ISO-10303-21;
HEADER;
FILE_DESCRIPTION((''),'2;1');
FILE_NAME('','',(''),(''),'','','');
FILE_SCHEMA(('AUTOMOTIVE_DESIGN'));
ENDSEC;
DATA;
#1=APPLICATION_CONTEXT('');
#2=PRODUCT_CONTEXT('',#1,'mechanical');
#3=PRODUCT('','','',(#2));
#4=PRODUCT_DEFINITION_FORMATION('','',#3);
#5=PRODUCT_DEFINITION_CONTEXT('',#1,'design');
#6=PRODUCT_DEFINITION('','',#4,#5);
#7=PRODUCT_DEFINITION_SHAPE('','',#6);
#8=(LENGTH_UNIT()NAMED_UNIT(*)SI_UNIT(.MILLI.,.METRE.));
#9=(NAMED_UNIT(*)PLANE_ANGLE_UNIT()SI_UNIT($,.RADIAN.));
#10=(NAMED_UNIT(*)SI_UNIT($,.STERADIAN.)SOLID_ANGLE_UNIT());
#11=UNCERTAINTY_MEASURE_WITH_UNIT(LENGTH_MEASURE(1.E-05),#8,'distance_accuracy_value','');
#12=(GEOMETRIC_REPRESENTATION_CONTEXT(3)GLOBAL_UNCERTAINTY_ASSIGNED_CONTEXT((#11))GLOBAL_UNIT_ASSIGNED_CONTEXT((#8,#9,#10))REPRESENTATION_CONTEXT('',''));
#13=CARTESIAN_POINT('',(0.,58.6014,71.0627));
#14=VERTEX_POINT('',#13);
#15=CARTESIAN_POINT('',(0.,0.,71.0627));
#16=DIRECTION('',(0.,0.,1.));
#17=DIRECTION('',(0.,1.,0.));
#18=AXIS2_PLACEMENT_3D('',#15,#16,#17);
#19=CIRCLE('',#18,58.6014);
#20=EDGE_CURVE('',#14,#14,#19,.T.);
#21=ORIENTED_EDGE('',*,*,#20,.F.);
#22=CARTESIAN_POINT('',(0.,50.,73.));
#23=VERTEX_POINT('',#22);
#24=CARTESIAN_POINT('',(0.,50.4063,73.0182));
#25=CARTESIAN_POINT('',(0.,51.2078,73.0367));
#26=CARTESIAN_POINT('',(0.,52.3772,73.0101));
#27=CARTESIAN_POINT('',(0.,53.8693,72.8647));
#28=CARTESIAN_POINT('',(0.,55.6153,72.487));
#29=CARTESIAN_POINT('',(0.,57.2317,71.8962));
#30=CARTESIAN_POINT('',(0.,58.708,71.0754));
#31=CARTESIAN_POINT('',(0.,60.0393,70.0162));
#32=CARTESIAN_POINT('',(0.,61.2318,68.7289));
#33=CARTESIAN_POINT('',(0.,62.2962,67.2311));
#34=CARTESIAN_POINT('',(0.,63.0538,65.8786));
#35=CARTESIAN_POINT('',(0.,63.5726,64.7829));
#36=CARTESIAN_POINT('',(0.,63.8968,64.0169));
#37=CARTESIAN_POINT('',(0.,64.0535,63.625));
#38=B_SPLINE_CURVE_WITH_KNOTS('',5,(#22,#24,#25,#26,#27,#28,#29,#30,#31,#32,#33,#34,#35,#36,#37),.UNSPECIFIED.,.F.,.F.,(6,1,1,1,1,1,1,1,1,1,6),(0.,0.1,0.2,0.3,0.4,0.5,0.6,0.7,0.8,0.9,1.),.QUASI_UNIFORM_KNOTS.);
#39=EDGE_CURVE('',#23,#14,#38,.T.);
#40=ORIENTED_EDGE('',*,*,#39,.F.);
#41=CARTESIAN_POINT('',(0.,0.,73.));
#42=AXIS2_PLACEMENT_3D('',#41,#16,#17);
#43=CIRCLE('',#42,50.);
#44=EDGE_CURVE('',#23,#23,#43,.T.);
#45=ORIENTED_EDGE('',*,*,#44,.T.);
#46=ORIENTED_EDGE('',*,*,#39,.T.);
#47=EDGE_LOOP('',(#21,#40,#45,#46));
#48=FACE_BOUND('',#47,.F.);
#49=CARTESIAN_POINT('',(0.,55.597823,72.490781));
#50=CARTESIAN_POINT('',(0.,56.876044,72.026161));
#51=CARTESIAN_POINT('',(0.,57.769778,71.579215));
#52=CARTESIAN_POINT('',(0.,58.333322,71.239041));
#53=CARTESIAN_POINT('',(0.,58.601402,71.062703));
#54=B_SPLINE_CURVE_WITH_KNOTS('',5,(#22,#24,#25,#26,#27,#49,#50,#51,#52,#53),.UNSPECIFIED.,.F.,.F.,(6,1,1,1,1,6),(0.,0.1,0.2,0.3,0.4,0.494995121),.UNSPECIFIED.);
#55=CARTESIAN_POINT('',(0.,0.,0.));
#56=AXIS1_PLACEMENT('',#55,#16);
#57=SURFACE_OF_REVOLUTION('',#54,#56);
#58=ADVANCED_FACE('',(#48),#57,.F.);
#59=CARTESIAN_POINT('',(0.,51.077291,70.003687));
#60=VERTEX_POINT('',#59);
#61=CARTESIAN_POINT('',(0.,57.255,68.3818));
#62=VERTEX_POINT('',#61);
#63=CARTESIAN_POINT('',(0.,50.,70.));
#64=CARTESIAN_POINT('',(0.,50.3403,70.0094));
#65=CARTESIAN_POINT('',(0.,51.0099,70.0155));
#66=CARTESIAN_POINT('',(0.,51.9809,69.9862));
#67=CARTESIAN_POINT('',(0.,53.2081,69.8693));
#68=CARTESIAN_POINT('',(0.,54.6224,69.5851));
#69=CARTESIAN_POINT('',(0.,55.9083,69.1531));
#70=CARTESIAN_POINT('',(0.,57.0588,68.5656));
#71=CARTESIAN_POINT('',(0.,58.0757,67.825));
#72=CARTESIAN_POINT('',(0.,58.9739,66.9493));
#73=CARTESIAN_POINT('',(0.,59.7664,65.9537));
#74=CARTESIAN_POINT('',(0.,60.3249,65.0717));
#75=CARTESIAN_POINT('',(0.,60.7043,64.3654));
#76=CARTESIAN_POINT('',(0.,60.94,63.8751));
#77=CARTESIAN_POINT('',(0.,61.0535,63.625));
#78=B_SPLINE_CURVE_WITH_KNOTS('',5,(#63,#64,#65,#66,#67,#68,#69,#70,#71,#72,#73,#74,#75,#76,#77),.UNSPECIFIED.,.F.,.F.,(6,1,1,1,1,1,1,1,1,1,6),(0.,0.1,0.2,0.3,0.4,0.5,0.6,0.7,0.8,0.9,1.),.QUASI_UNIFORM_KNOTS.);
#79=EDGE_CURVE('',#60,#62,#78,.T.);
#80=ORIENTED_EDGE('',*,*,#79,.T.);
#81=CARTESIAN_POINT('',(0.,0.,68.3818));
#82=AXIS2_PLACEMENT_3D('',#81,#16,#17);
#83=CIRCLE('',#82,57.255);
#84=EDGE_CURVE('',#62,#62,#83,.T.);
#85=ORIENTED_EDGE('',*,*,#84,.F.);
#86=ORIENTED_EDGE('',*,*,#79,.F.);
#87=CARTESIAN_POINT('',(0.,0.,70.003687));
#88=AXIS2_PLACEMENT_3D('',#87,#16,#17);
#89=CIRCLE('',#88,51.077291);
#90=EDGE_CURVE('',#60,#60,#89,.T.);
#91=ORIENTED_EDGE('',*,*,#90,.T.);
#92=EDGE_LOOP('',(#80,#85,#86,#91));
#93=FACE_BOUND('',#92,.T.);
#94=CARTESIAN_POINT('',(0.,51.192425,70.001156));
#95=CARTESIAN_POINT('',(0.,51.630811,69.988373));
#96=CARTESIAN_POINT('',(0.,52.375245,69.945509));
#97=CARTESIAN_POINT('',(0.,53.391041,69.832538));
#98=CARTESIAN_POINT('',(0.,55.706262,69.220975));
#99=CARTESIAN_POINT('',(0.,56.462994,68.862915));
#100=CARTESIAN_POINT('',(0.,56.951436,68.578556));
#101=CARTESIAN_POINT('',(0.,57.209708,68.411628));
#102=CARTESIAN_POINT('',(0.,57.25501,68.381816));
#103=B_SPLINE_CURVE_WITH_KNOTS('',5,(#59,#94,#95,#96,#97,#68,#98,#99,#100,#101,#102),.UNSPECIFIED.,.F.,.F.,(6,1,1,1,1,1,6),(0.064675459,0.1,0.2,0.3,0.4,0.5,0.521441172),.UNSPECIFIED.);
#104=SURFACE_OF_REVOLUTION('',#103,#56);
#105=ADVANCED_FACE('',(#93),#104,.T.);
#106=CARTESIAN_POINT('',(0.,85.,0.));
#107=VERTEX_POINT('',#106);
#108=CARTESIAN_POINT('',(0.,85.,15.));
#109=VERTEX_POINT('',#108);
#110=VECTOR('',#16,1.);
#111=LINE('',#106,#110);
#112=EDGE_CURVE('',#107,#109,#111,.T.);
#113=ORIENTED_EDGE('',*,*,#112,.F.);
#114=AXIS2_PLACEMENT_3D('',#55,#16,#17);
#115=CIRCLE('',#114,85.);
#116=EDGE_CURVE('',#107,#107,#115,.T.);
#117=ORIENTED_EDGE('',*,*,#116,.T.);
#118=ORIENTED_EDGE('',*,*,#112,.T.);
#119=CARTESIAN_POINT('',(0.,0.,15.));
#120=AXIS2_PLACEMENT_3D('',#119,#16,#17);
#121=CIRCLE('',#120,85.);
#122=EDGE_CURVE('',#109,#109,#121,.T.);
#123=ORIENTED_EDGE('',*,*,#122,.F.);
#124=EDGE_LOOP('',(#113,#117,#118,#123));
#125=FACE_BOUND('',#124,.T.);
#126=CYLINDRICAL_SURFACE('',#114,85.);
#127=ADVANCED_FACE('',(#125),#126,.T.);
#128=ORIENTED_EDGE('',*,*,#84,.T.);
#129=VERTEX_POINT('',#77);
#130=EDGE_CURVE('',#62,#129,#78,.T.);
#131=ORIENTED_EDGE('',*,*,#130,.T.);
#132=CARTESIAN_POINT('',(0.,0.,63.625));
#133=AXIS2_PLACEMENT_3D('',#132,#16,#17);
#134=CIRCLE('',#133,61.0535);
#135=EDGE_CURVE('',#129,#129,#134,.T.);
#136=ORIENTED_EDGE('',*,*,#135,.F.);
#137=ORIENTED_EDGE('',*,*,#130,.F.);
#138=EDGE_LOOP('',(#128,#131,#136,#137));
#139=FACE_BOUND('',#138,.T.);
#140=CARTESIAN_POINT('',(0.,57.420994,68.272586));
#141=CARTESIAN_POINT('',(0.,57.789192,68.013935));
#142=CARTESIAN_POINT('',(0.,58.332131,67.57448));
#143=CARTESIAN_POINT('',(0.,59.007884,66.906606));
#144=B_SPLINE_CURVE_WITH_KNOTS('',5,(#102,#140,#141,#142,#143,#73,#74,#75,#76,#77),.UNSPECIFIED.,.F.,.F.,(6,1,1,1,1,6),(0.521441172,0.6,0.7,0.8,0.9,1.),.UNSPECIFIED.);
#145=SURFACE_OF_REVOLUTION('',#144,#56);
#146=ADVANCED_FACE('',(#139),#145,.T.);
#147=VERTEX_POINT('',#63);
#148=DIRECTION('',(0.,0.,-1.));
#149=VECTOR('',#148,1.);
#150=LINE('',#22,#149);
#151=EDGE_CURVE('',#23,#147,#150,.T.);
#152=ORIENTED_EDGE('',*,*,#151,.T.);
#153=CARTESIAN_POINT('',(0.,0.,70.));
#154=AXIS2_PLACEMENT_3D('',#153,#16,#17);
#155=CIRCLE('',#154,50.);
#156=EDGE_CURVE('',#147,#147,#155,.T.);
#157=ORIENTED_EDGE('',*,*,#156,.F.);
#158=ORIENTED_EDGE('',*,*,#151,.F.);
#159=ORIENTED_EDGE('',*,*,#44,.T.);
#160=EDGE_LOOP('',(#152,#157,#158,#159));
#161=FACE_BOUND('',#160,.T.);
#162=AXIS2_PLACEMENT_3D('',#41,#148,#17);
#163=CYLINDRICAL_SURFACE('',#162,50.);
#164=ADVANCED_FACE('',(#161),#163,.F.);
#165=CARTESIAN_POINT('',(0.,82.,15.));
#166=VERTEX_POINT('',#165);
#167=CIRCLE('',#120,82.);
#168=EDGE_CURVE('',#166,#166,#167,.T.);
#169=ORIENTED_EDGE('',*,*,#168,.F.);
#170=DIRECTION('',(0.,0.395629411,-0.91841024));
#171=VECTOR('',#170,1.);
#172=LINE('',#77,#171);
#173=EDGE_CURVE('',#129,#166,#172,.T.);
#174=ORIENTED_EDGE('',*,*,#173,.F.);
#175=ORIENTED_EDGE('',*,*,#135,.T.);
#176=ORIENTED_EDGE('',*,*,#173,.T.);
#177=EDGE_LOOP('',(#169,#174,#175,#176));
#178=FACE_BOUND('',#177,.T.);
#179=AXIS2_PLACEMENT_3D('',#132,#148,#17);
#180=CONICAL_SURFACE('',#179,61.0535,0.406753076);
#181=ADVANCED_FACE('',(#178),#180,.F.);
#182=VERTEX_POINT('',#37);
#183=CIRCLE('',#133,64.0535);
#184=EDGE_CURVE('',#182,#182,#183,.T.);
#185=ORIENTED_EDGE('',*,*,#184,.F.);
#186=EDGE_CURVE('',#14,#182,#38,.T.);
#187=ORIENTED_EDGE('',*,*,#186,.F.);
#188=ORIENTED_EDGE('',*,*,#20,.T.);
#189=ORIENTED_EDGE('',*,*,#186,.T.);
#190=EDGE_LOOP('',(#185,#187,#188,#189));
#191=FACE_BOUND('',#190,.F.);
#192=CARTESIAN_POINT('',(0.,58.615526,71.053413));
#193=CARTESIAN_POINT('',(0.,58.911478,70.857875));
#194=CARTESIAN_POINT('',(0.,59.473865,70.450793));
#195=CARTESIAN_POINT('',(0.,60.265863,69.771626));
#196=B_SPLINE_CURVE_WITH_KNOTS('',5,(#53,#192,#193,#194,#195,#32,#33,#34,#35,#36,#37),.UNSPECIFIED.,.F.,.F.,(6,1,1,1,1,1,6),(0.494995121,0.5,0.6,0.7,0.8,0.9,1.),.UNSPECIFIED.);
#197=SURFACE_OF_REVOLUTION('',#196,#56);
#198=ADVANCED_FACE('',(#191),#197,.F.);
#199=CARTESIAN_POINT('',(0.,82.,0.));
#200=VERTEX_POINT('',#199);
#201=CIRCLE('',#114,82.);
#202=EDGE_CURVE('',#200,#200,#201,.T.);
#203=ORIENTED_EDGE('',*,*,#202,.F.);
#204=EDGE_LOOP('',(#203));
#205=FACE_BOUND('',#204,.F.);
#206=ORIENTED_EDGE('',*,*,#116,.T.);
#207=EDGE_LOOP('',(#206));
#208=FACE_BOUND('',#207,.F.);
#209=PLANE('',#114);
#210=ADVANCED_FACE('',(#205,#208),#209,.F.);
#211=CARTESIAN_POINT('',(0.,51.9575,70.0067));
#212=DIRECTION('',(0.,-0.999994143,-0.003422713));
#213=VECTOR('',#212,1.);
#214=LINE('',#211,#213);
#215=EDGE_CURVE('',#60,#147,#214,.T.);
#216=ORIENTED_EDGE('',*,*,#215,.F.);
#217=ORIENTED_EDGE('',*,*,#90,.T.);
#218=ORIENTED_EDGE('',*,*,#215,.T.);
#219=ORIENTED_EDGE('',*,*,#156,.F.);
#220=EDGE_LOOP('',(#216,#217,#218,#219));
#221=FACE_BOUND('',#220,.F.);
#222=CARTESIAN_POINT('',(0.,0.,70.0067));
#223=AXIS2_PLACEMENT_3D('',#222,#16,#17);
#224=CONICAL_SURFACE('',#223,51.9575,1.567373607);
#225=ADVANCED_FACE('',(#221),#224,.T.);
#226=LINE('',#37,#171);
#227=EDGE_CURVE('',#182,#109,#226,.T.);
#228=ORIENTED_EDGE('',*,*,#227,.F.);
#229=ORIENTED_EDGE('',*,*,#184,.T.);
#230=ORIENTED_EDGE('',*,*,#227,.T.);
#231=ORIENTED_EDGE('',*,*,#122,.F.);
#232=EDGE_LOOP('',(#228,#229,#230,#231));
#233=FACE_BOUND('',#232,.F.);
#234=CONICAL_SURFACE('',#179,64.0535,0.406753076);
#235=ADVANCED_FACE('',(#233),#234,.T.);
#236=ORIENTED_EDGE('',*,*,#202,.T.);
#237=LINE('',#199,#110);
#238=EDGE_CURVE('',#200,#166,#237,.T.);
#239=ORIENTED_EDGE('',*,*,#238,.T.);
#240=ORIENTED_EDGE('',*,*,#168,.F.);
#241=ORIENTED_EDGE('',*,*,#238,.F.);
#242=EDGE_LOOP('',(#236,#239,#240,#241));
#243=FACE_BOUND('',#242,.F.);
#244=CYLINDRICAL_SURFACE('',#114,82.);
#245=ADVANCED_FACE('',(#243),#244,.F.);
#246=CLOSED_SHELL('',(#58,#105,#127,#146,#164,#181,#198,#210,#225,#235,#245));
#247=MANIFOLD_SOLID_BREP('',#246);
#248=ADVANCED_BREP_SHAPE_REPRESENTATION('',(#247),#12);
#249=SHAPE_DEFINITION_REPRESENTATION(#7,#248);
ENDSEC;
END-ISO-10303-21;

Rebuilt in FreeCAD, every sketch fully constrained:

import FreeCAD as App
import Part
import Sketcher

V = App.Vector
Q = App.Units.Quantity

doc = App.newDocument("Part")
params = doc.addObject("Spreadsheet::Sheet", "Params")
for row, (alias, value) in enumerate([
    ("sketch1_height", "15 mm"),
    ("revolution_angle", "360 deg"),
], start=1):
    params.set(f"A{row}", alias)
    params.set(f"B{row}", "=" + value)
    params.setAlias(f"B{row}", alias)

body = doc.addObject("PartDesign::Body", "Body")

# Sketch on YZ plane
sketch1 = body.newObject("Sketcher::SketchObject", "Sketch")
sketch1.AttachmentSupport = (doc.getObject("YZ_Plane"), [""])
sketch1.MapMode = "FlatFace"
sketch1.addGeometry(Part.LineSegment(V(82, 0, 0), V(85, 0, 0)), False)
sketch1.addGeometry(Part.LineSegment(V(85, 0, 0), V(85, 15, 0)), False)
sketch1.addGeometry(Part.LineSegment(V(85, 15, 0), V(64.0535, 63.625, 0)), False)
sketch1.addGeometry(Part.BSplineCurve([V(58.601402, 71.062703, 0), V(58.615526, 71.053413, 0), V(58.911478, 70.857875, 0), V(59.473865, 70.450793, 0), V(60.265863, 69.771626, 0), V(61.2318, 68.7289, 0), V(62.2962, 67.2311, 0), V(63.0538, 65.8786, 0), V(63.5726, 64.7829, 0), V(63.8968, 64.0169, 0), V(64.0535, 63.625, 0)], [6, 1, 1, 1, 1, 1, 6], [0.494995121, 0.5, 0.6, 0.7, 0.8, 0.9, 1], False, 5, [1, 1, 1, 1, 1, 1, 1, 1, 1, 1, 1], False), False)
sketch1.addGeometry(Part.BSplineCurve([V(50, 73, 0), V(50.4063, 73.0182, 0), V(51.2078, 73.0367, 0), V(52.3772, 73.0101, 0), V(53.8693, 72.8647, 0), V(55.597823, 72.490781, 0), V(56.876044, 72.026161, 0), V(57.769778, 71.579215, 0), V(58.333322, 71.239041, 0), V(58.601402, 71.062703, 0)], [6, 1, 1, 1, 1, 6], [0, 0.1, 0.2, 0.3, 0.4, 0.494995121], False, 5, [1, 1, 1, 1, 1, 1, 1, 1, 1, 1], False), False)
sketch1.addGeometry(Part.LineSegment(V(50, 73, 0), V(50, 70, 0)), False)
sketch1.addGeometry(Part.LineSegment(V(50, 70, 0), V(51.077291, 70.003687, 0)), False)
sketch1.addGeometry(Part.BSplineCurve([V(51.077291, 70.003687, 0), V(51.192425, 70.001156, 0), V(51.630811, 69.988373, 0), V(52.375245, 69.945509, 0), V(53.391041, 69.832538, 0), V(54.6224, 69.5851, 0), V(55.706262, 69.220975, 0), V(56.462994, 68.862915, 0), V(56.951436, 68.578556, 0), V(57.209708, 68.411628, 0), V(57.25501, 68.381816, 0)], [6, 1, 1, 1, 1, 1, 6], [0.064675459, 0.1, 0.2, 0.3, 0.4, 0.5, 0.521441172], False, 5, [1, 1, 1, 1, 1, 1, 1, 1, 1, 1, 1], False), False)
sketch1.addGeometry(Part.BSplineCurve([V(57.25501, 68.381816, 0), V(57.420994, 68.272586, 0), V(57.789192, 68.013935, 0), V(58.332131, 67.57448, 0), V(59.007884, 66.906606, 0), V(59.7664, 65.9537, 0), V(60.3249, 65.0717, 0), V(60.7043, 64.3654, 0), V(60.94, 63.8751, 0), V(61.0535, 63.625, 0)], [6, 1, 1, 1, 1, 6], [0.521441172, 0.6, 0.7, 0.8, 0.9, 1], False, 5, [1, 1, 1, 1, 1, 1, 1, 1, 1, 1], False), False)
sketch1.addGeometry(Part.LineSegment(V(61.0535, 63.625, 0), V(82, 15, 0)), False)
sketch1.addGeometry(Part.LineSegment(V(82, 15, 0), V(82, 0, 0)), False)
sketch1.addConstraint(Sketcher.Constraint("Block", 3))
sketch1.addConstraint(Sketcher.Constraint("Block", 4))
sketch1.addConstraint(Sketcher.Constraint("Block", 7))
sketch1.addConstraint(Sketcher.Constraint("Block", 8))
sketch1.addConstraint(Sketcher.Constraint("Coincident", 0, 2, 1, 1))
sketch1.addConstraint(Sketcher.Constraint("Coincident", 1, 2, 2, 1))
sketch1.addConstraint(Sketcher.Constraint("Coincident", 2, 2, 3, 2))
sketch1.addConstraint(Sketcher.Constraint("Coincident", 4, 1, 5, 1))
sketch1.addConstraint(Sketcher.Constraint("Coincident", 5, 2, 6, 1))
sketch1.addConstraint(Sketcher.Constraint("Coincident", 6, 2, 7, 1))
sketch1.addConstraint(Sketcher.Constraint("Coincident", 8, 2, 9, 1))
sketch1.addConstraint(Sketcher.Constraint("Coincident", 9, 2, 10, 1))
sketch1.addConstraint(Sketcher.Constraint("Coincident", 10, 2, 0, 1))
sketch1.addConstraint(Sketcher.Constraint("Horizontal", 0))
sketch1.addConstraint(Sketcher.Constraint("Vertical", 1))
sketch1.addConstraint(Sketcher.Constraint("Vertical", 5))
sketch1.addConstraint(Sketcher.Constraint("Vertical", 10))
sketch1.addConstraint(Sketcher.Constraint("PointOnObject", 0, 2, -1))
sketch1.addConstraint(Sketcher.Constraint("Parallel", 2, 9))
sketch1.addConstraint(Sketcher.Constraint("Horizontal", 1, 2, 9, 2))
sketch1.addConstraint(Sketcher.Constraint("Equal", 0, 5))
sketch1.addConstraint(Sketcher.Constraint("DistanceY", 1, 1, 1, 2, Q("15 mm")))
sketch1.addConstraint(Sketcher.Constraint("DistanceX", -1, 1, 0, 2, Q("85 mm")))
sketch1.setExpression("Constraints[21]", "Params.sketch1_height")
revolution = body.newObject("PartDesign::Revolution", "Revolution")
revolution.Profile = sketch1
revolution.ReferenceAxis = (sketch1, ["V_Axis"])
revolution.setExpression("Angle", "Params.revolution_angle")

doc.recompute()
